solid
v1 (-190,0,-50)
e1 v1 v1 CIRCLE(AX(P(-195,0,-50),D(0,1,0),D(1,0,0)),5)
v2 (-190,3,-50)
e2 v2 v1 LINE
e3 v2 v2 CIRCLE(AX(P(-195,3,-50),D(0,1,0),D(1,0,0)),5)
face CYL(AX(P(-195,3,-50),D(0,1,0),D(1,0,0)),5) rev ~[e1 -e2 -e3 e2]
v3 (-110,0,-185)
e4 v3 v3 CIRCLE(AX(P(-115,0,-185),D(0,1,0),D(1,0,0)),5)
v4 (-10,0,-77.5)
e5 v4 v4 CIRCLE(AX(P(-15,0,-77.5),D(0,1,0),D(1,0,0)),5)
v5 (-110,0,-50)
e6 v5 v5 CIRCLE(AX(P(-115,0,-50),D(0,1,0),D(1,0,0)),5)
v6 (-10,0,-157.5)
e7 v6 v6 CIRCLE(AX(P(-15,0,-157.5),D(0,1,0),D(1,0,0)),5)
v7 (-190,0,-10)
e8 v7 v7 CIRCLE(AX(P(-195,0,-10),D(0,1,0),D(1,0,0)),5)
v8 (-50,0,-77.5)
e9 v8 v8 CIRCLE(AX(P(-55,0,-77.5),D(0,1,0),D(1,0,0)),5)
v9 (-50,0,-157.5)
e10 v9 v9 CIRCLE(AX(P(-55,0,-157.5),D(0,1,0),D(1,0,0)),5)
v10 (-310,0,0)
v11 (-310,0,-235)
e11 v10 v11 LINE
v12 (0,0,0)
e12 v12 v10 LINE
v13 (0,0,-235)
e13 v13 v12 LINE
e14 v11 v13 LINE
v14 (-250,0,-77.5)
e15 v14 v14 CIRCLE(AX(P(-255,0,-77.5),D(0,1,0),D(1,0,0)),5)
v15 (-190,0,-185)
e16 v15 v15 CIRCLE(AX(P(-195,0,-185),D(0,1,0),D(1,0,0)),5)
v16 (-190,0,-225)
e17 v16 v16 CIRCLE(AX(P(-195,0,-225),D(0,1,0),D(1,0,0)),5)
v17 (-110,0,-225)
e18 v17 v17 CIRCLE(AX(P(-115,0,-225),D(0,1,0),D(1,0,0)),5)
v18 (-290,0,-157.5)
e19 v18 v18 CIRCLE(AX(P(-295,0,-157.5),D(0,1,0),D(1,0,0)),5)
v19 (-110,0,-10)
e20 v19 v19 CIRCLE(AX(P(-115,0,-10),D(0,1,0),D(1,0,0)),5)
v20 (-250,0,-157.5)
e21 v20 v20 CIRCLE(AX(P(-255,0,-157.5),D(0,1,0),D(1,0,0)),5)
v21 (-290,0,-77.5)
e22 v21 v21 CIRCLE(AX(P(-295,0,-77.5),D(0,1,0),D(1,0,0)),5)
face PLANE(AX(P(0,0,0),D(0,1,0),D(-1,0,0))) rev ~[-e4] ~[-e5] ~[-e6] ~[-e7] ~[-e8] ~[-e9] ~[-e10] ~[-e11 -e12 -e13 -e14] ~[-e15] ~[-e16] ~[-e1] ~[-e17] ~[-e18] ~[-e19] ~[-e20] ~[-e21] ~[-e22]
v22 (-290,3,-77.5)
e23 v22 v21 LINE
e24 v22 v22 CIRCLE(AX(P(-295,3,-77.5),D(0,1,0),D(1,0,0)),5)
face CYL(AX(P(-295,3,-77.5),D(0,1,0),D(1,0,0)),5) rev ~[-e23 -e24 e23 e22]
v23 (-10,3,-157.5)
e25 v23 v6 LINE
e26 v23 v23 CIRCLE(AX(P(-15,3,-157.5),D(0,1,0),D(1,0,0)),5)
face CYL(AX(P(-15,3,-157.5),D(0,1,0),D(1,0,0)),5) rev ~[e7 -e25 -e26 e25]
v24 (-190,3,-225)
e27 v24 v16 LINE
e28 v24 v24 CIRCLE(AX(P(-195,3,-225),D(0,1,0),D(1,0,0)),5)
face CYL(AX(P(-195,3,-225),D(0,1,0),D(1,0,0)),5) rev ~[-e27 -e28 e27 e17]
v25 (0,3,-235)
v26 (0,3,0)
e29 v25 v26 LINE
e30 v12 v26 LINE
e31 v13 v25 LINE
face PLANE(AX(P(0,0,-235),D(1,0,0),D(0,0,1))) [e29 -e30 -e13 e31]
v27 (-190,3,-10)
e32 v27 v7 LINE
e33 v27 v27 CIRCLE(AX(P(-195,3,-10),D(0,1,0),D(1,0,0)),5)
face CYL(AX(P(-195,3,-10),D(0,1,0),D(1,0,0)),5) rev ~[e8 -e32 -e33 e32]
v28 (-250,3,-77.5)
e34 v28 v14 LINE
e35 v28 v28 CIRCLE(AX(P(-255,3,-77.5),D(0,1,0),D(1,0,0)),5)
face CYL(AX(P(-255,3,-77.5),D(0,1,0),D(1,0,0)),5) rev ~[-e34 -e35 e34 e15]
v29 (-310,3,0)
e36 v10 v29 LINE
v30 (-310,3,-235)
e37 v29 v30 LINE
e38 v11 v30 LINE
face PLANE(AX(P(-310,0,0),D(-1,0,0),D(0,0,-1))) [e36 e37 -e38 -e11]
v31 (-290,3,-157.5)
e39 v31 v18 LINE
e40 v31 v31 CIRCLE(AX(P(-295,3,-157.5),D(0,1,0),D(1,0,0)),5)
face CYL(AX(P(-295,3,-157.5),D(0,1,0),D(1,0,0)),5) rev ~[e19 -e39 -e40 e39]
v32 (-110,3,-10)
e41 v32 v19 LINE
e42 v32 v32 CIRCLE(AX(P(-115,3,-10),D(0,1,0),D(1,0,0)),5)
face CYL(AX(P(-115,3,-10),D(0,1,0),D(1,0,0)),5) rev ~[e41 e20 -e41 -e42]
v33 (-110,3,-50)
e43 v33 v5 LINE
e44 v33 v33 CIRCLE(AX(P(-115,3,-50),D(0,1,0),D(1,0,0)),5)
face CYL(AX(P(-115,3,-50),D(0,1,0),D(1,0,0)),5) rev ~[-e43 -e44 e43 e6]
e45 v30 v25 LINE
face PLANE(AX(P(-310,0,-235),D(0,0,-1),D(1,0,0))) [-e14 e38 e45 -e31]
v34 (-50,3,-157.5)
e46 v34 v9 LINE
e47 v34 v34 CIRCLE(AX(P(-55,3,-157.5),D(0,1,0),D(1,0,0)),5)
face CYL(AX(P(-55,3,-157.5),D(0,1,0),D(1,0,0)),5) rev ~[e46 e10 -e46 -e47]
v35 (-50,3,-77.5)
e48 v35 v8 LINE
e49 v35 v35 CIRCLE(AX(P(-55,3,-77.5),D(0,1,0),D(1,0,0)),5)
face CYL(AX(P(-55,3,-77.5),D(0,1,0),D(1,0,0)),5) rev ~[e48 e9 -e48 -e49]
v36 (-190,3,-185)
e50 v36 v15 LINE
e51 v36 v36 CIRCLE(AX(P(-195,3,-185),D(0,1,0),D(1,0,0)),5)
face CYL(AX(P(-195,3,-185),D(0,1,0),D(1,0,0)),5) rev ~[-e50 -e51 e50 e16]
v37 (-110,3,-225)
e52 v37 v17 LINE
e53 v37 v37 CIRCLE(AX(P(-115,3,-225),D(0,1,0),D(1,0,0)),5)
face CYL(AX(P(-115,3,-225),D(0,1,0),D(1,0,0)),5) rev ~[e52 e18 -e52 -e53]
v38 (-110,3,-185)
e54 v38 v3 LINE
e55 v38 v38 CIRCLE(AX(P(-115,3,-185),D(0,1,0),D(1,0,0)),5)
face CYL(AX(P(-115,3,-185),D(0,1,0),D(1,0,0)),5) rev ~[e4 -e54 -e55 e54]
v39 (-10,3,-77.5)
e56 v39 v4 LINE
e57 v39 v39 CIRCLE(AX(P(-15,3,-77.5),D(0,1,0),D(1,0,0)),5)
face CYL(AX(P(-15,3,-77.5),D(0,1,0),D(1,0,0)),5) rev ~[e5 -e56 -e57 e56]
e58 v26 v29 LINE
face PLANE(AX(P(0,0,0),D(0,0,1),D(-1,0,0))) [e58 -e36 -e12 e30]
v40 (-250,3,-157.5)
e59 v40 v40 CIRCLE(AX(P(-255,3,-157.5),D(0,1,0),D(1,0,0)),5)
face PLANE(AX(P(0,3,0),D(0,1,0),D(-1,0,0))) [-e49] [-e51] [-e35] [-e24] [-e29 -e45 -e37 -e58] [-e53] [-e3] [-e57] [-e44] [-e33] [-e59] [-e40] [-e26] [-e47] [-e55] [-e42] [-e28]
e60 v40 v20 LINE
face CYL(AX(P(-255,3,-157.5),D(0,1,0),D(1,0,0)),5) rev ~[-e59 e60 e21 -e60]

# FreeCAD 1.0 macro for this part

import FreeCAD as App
import Part
import Sketcher

V = App.Vector

doc = App.newDocument("Part")
params = doc.addObject("Spreadsheet::Sheet", "Params")
for row, (alias, value) in enumerate([
    ("sketch1_width", "310 mm"),
    ("sketch1_height", "235 mm"),
    ("pad1_length", "3 mm"),
    ("sketch2_diameter", "10 mm"),
    ("pocket1_length", "3 mm"),
], start=1):
    params.set(f"A{row}", alias)
    params.set(f"B{row}", "=" + value)
    params.setAlias(f"B{row}", alias)

body = doc.addObject("PartDesign::Body", "Body")

# Sketch on XZ plane
sketch1 = body.newObject("Sketcher::SketchObject", "Sketch")
sketch1.AttachmentSupport = (doc.getObject("XZ_Plane"), [""])
sketch1.MapMode = "FlatFace"
sketch1.addGeometry([
    Part.LineSegment(V(-310, 0, 0), V(0, 0, 0)),
    Part.LineSegment(V(0, 0, 0), V(0, -235, 0)),
    Part.LineSegment(V(0, -235, 0), V(-310, -235, 0)),
    Part.LineSegment(V(-310, -235, 0), V(-310, 0, 0)),
], False)
sketch1.addConstraint([
    Sketcher.Constraint("Coincident", 0, 2, 1, 1),
    Sketcher.Constraint("Coincident", 1, 2, 2, 1),
    Sketcher.Constraint("Coincident", 2, 2, 3, 1),
    Sketcher.Constraint("Coincident", 3, 2, 0, 1),
    Sketcher.Constraint("Horizontal", 0),
    Sketcher.Constraint("Vertical", 1),
    Sketcher.Constraint("Horizontal", 2),
    Sketcher.Constraint("Vertical", 3),
    Sketcher.Constraint("Coincident", 0, 2, -1, 1),
    Sketcher.Constraint("DistanceX", 0, 1, 0, 2, 310.0),
    Sketcher.Constraint("DistanceY", 1, 2, 1, 1, 235.0),
])
sketch1.setExpression("Constraints[9]", "Params.sketch1_width")
sketch1.setExpression("Constraints[10]", "Params.sketch1_height")
pad1 = body.newObject("PartDesign::Pad", "Pad")
pad1.Profile = sketch1
pad1.setExpression("Length", "Params.pad1_length")
pad1.Reversed = True

# Sketch on XZ plane
sketch2 = body.newObject("Sketcher::SketchObject", "Sketch001")
sketch2.AttachmentSupport = (doc.getObject("XZ_Plane"), [""])
sketch2.MapMode = "FlatFace"
sketch2.AttachmentOffset = App.Placement(V(0, 0, -3), App.Rotation())
sketch2.addGeometry([
    Part.Circle(V(-195, -10, 0), V(0, 0, 1), 5),  # 0
    Part.Circle(V(-115, -10, 0), V(0, 0, 1), 5),  # 1
    Part.Circle(V(-195, -225, 0), V(0, 0, 1), 5),  # 2
    Part.Circle(V(-115, -225, 0), V(0, 0, 1), 5),  # 3
    Part.Circle(V(-195, -50, 0), V(0, 0, 1), 5),  # 4
    Part.Circle(V(-115, -50, 0), V(0, 0, 1), 5),  # 5
    Part.Circle(V(-195, -185, 0), V(0, 0, 1), 5),  # 6
    Part.Circle(V(-115, -185, 0), V(0, 0, 1), 5),  # 7
    Part.Circle(V(-295, -157.5, 0), V(0, 0, 1), 5),  # 8
    Part.Circle(V(-295, -77.5, 0), V(0, 0, 1), 5),  # 9
    Part.Circle(V(-15, -157.5, 0), V(0, 0, 1), 5),  # 10
    Part.Circle(V(-15, -77.5, 0), V(0, 0, 1), 5),  # 11
    Part.Circle(V(-255, -157.5, 0), V(0, 0, 1), 5),  # 12
    Part.Circle(V(-255, -77.5, 0), V(0, 0, 1), 5),  # 13
    Part.Circle(V(-55, -157.5, 0), V(0, 0, 1), 5),  # 14
    Part.Circle(V(-55, -77.5, 0), V(0, 0, 1), 5),  # 15
], False)
sketch2.addConstraint([
    Sketcher.Constraint("Equal", 0, 1),
    Sketcher.Constraint("Equal", 1, 2),
    Sketcher.Constraint("Equal", 2, 3),
    Sketcher.Constraint("Equal", 3, 4),
    Sketcher.Constraint("Equal", 4, 5),
    Sketcher.Constraint("Equal", 5, 6),
    Sketcher.Constraint("Equal", 6, 7),
    Sketcher.Constraint("Equal", 7, 8),
    Sketcher.Constraint("Equal", 8, 9),
    Sketcher.Constraint("Equal", 9, 10),
    Sketcher.Constraint("Equal", 10, 11),
    Sketcher.Constraint("Equal", 11, 12),
    Sketcher.Constraint("Equal", 12, 13),
    Sketcher.Constraint("Equal", 13, 14),
    Sketcher.Constraint("Equal", 14, 15),
    Sketcher.Constraint("Horizontal", 0, 3, 1, 3),
    Sketcher.Constraint("Horizontal", 2, 3, 3, 3),
    Sketcher.Constraint("Horizontal", 4, 3, 5, 3),
    Sketcher.Constraint("Horizontal", 6, 3, 7, 3),
    Sketcher.Constraint("Horizontal", 8, 3, 10, 3),
    Sketcher.Constraint("Horizontal", 9, 3, 11, 3),
    Sketcher.Constraint("Horizontal", 10, 3, 12, 3),
    Sketcher.Constraint("Horizontal", 11, 3, 13, 3),
    Sketcher.Constraint("Horizontal", 12, 3, 14, 3),
    Sketcher.Constraint("Horizontal", 13, 3, 15, 3),
    Sketcher.Constraint("Vertical", 0, 3, 2, 3),
    Sketcher.Constraint("Vertical", 1, 3, 3, 3),
    Sketcher.Constraint("Vertical", 2, 3, 4, 3),
    Sketcher.Constraint("Vertical", 3, 3, 5, 3),
    Sketcher.Constraint("Vertical", 4, 3, 6, 3),
    Sketcher.Constraint("Vertical", 5, 3, 7, 3),
    Sketcher.Constraint("Vertical", 8, 3, 9, 3),
    Sketcher.Constraint("Vertical", 10, 3, 11, 3),
    Sketcher.Constraint("Vertical", 12, 3, 13, 3),
    Sketcher.Constraint("Vertical", 14, 3, 15, 3),
    Sketcher.Constraint("Diameter", 0, 10.0),
    Sketcher.Constraint("DistanceY", 0, 3, -1, 1, 10.0),
    Sketcher.Constraint("DistanceX", 10, 3, -1, 1, 15.0),
    Sketcher.Constraint("DistanceY", 4, 3, 0, 3, 40.0),
    Sketcher.Constraint("DistanceY", 2, 3, 6, 3, 40.0),
    Sketcher.Constraint("DistanceX", 8, 3, 12, 3, 40.0),
    Sketcher.Constraint("DistanceX", 14, 3, 10, 3, 40.0),
    Sketcher.Constraint("DistanceX", 0, 3, -1, 1, 195.0),
    Sketcher.Constraint("DistanceX", 1, 3, -1, 1, 115.0),
    Sketcher.Constraint("DistanceY", 2, 3, -1, 1, 225.0),
    Sketcher.Constraint("DistanceX", 8, 3, -1, 1, 295.0),
    Sketcher.Constraint("DistanceY", 8, 3, 9, 3, 80.0),
    Sketcher.Constraint("DistanceY", 8, 3, -1, 1, 157.5),
])
sketch2.setExpression("Constraints[35]", "Params.sketch2_diameter")
pocket1 = body.newObject("PartDesign::Pocket", "Pocket")
pocket1.Profile = sketch2
pocket1.setExpression("Length", "Params.pocket1_length")
pocket1.Reversed = True

doc.recompute()
